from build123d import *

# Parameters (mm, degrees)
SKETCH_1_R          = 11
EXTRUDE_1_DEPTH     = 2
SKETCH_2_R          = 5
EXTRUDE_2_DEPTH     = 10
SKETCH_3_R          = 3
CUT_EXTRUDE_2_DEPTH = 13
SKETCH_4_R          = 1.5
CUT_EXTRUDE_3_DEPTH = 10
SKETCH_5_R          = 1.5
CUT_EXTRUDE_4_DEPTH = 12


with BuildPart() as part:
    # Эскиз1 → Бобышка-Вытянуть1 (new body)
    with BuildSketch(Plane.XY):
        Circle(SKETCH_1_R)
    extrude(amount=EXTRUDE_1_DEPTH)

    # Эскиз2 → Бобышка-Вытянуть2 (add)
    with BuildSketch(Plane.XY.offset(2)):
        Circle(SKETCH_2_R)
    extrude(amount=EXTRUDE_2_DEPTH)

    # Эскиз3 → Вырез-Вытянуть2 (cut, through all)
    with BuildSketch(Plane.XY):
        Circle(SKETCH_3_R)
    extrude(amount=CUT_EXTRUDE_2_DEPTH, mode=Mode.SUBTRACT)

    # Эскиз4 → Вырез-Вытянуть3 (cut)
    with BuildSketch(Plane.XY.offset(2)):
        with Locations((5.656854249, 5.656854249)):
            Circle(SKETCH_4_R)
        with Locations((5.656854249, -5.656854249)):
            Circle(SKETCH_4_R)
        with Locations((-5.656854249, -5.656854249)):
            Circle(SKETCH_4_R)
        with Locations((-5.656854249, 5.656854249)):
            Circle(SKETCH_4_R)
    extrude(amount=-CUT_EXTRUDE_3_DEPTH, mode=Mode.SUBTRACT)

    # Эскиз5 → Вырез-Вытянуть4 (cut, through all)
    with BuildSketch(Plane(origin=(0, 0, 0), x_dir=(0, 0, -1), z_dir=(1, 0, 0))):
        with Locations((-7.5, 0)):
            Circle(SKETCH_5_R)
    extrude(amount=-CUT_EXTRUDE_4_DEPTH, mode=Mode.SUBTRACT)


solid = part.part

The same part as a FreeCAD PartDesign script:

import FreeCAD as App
import Part
import Sketcher

V = App.Vector
Q = App.Units.Quantity

doc = App.newDocument("Part")
body = doc.addObject("PartDesign::Body", "Body")

sketch1 = body.newObject("Sketcher::SketchObject", "Sketch")
sketch1.AttachmentSupport = (doc.getObject("XY_Plane"), [""])
sketch1.MapMode = "FlatFace"
sketch1.addGeometry(Part.Circle(V(0, 0, 0), V(0, 0, 1), 11), False)
sketch1.addConstraint(Sketcher.Constraint("Coincident", 0, 3, -1, 1))
sketch1.addConstraint(Sketcher.Constraint("Diameter", 0, Q("22 mm")))
pad1 = body.newObject("PartDesign::Pad", "Pad")
pad1.Profile = sketch1
pad1.Length = 2

sketch2 = body.newObject("Sketcher::SketchObject", "Sketch001")
sketch2.AttachmentSupport = (doc.getObject("XY_Plane"), [""])
sketch2.MapMode = "FlatFace"
sketch2.AttachmentOffset = App.Placement(V(0, 0, 2), App.Rotation())
sketch2.addGeometry(Part.Circle(V(0, 0, 0), V(0, 0, 1), 5), False)
sketch2.addConstraint(Sketcher.Constraint("Coincident", 0, 3, -1, 1))
sketch2.addConstraint(Sketcher.Constraint("Diameter", 0, Q("10 mm")))
pad2 = body.newObject("PartDesign::Pad", "Pad001")
pad2.Profile = sketch2
pad2.Length = 10

sketch3 = body.newObject("Sketcher::SketchObject", "Sketch002")
sketch3.AttachmentSupport = (doc.getObject("XY_Plane"), [""])
sketch3.MapMode = "FlatFace"
sketch3.addGeometry(Part.Circle(V(0, 0, 0), V(0, 0, 1), 3), False)
sketch3.addConstraint(Sketcher.Constraint("Coincident", 0, 3, -1, 1))
sketch3.addConstraint(Sketcher.Constraint("Diameter", 0, Q("6 mm")))
pocket1 = body.newObject("PartDesign::Pocket", "Pocket")
pocket1.Profile = sketch3
pocket1.Type = "ThroughAll"
pocket1.Reversed = True

sketch4 = body.newObject("Sketcher::SketchObject", "Sketch003")
sketch4.AttachmentSupport = (doc.getObject("XY_Plane"), [""])
sketch4.MapMode = "FlatFace"
sketch4.AttachmentOffset = App.Placement(V(0, 0, 2), App.Rotation())
sketch4.addGeometry(Part.Circle(V(5.656854, 5.656854, 0), V(0, 0, 1), 1.5), False)
sketch4.addGeometry(Part.Circle(V(5.656854, -5.656854, 0), V(0, 0, 1), 1.5), False)
sketch4.addGeometry(Part.Circle(V(-5.656854, -5.656854, 0), V(0, 0, 1), 1.5), False)
sketch4.addGeometry(Part.Circle(V(-5.656854, 5.656854, 0), V(0, 0, 1), 1.5), False)
sketch4.addConstraint(Sketcher.Constraint("Equal", 0, 1))
sketch4.addConstraint(Sketcher.Constraint("Equal", 1, 2))
sketch4.addConstraint(Sketcher.Constraint("Equal", 2, 3))
sketch4.addConstraint(Sketcher.Constraint("Symmetric", 0, 3, 2, 3, -1, 1))
sketch4.addConstraint(Sketcher.Constraint("Symmetric", 1, 3, 3, 3, -1, 1))
sketch4.addConstraint(Sketcher.Constraint("Symmetric", 1, 3, 2, 3, -2))
sketch4.addConstraint(Sketcher.Constraint("Diameter", 0, Q("3 mm")))
sketch4.addConstraint(Sketcher.Constraint("DistanceY", 1, 3, 0, 3, Q("11.313708 mm")))
sketch4.addConstraint(Sketcher.Constraint("DistanceX", 2, 3, 1, 3, Q("11.313708 mm")))
pocket2 = body.newObject("PartDesign::Pocket", "Pocket001")
pocket2.Profile = sketch4
pocket2.Length = 10

sketch5 = body.newObject("Sketcher::SketchObject", "Sketch004")
sketch5.AttachmentSupport = (doc.getObject("YZ_Plane"), [""])
sketch5.MapMode = "FlatFace"
sketch5.addGeometry(Part.Circle(V(0, 7.5, 0), V(0, 0, 1), 1.5), False)
sketch5.addConstraint(Sketcher.Constraint("PointOnObject", 0, 3, -2))
sketch5.addConstraint(Sketcher.Constraint("Diameter", 0, Q("3 mm")))
sketch5.addConstraint(Sketcher.Constraint("DistanceY", -1, 1, 0, 3, Q("7.5 mm")))
pocket3 = body.newObject("PartDesign::Pocket", "Pocket002")
pocket3.Profile = sketch5
pocket3.Type = "ThroughAll"

doc.recompute()
